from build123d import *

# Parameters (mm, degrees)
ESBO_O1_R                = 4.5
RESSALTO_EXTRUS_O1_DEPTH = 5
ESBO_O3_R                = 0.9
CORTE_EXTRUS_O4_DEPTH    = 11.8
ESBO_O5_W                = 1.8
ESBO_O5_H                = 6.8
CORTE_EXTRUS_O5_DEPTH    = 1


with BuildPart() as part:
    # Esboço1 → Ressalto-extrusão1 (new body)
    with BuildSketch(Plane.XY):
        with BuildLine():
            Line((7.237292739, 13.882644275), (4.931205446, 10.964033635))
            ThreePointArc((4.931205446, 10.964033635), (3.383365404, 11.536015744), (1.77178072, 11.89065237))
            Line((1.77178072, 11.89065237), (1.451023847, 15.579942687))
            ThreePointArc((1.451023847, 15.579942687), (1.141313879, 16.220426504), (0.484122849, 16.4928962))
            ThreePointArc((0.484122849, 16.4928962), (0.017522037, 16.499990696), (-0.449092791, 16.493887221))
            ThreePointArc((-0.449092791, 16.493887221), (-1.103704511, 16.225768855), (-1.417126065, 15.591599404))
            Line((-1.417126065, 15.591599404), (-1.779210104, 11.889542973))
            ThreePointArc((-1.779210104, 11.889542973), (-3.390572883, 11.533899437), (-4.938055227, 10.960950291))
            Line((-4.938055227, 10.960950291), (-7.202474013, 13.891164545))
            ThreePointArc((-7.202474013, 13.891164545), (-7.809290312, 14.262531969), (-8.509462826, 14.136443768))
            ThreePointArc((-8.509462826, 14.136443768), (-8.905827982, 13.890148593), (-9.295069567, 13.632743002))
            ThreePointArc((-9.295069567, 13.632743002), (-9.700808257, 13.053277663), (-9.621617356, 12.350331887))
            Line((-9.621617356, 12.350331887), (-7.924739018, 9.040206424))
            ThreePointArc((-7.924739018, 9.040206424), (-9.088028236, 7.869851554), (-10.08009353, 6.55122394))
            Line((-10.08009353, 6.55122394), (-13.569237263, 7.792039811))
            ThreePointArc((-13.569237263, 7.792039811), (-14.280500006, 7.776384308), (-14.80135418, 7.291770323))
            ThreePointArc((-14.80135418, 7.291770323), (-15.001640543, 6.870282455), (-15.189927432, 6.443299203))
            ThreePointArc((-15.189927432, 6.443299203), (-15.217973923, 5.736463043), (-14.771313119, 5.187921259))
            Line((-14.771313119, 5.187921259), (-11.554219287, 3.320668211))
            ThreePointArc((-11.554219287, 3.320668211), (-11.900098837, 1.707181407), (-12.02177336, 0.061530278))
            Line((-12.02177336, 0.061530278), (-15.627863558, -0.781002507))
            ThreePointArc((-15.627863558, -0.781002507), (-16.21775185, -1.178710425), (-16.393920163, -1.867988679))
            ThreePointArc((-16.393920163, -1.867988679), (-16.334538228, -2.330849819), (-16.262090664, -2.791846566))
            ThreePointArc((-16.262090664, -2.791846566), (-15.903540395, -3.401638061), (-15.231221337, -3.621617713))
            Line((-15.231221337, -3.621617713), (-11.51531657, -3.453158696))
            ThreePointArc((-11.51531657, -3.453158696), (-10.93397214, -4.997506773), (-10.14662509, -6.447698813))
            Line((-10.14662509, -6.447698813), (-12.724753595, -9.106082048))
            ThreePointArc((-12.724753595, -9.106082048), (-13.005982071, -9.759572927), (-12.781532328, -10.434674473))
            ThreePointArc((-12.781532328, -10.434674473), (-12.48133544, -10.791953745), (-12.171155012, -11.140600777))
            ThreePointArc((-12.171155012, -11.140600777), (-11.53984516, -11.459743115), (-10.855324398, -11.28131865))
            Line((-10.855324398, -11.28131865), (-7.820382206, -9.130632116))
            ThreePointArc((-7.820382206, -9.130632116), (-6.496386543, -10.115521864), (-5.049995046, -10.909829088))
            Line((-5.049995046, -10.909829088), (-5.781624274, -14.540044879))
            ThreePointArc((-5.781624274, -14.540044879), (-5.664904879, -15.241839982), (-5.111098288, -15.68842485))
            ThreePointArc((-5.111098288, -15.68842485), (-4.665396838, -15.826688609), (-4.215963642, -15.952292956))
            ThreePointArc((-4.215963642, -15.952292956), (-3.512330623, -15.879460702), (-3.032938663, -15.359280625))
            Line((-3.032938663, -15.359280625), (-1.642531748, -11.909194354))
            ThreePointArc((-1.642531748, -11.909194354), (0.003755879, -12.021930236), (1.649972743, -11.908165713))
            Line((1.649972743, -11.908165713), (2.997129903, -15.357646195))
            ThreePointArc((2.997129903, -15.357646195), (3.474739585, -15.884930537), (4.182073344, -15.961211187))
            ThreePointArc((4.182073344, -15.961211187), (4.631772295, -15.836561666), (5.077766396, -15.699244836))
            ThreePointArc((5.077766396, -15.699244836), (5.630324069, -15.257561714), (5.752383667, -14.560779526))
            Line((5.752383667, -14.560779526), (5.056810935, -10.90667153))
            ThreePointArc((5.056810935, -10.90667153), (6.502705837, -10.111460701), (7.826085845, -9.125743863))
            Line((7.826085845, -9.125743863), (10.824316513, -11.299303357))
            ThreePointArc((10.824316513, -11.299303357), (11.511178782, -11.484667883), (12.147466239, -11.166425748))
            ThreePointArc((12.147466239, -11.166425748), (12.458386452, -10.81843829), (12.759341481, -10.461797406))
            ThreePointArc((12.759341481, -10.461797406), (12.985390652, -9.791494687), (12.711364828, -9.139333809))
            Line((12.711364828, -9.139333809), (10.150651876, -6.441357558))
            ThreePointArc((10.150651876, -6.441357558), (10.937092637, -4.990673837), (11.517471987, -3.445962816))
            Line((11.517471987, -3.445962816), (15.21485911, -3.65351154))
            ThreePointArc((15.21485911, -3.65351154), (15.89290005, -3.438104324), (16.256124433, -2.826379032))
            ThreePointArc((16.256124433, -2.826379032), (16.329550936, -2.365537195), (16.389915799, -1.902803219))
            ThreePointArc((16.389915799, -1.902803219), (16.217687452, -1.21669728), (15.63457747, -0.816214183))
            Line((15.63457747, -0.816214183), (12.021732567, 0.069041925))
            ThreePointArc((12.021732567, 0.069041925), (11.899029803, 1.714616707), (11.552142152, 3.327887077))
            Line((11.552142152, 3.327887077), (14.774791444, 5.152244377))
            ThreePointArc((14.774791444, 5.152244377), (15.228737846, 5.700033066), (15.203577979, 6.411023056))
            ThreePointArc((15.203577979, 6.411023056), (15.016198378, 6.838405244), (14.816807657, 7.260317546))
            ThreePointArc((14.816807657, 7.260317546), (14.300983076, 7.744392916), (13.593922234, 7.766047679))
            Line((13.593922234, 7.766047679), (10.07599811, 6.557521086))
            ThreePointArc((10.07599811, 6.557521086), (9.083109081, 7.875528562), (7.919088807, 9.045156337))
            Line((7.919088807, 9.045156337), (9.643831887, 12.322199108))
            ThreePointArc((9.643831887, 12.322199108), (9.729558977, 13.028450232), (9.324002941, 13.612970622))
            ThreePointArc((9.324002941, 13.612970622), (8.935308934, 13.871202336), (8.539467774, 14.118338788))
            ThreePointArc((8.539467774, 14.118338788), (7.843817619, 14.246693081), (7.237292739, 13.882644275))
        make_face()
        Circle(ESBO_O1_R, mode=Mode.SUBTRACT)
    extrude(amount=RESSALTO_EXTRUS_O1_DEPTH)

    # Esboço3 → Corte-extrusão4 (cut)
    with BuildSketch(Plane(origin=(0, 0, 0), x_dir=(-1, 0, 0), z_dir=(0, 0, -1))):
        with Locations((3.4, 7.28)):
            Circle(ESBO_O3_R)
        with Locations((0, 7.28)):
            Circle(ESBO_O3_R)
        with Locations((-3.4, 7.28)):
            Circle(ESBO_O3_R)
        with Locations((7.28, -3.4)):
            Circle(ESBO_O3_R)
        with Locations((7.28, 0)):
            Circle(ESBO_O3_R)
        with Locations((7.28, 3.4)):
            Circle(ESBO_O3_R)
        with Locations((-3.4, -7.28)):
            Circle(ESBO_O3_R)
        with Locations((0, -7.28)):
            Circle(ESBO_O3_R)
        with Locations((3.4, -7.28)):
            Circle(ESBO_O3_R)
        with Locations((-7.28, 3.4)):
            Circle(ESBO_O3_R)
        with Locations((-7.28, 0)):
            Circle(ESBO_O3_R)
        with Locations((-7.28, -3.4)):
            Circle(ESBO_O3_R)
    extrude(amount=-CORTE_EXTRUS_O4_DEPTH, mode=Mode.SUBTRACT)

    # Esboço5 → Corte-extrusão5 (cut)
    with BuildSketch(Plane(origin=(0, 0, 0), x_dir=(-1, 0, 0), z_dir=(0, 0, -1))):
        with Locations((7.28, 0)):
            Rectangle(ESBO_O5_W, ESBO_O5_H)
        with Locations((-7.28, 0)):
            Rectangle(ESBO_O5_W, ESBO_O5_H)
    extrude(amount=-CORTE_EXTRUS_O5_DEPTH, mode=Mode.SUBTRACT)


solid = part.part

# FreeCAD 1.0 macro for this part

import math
import FreeCAD as App
import Part
import Sketcher
from FreeCAD import Vector
Q = App.Units.Quantity

doc = App.newDocument("Part")
body = doc.addObject("PartDesign::Body", "Body")

# Sketch on XY plane
sketch1 = body.newObject("Sketcher::SketchObject", "Sketch")
sketch1.AttachmentSupport = (doc.getObject("XY_Plane"), [""])
sketch1.MapMode = "FlatFace"
sketch1.addGeometry(Part.LineSegment(Vector(7.237293, 13.882644, 0), Vector(4.931205, 10.964034, 0)), False)
sketch1.addGeometry(Part.ArcOfCircle(Part.Circle(Vector(0, 0, 0), Vector(0, 0, 1), 12.021931), math.radians(65.783597), math.radians(81.524931)), False)
sketch1.addGeometry(Part.LineSegment(Vector(1.771781, 11.890652, 0), Vector(1.451024, 15.579943, 0)), False)
sketch1.addGeometry(Part.ArcOfCircle(Part.Circle(Vector(0.454782, 15.493327, 0), Vector(0, 0, 1), 1), math.radians(4.968955), math.radians(88.318656)), False)
sketch1.addGeometry(Part.ArcOfCircle(Part.Circle(Vector(0, 0, 0), Vector(0, 0, 1), 16.5), math.radians(88.318656), math.radians(91.559654)), False)
sketch1.addGeometry(Part.ArcOfCircle(Part.Circle(Vector(-0.421875, 15.494258, 0), Vector(0, 0, 1), 1), math.radians(91.559654), math.radians(174.413885)), False)
sketch1.addGeometry(Part.LineSegment(Vector(-1.417126, 15.591599, 0), Vector(-1.77921, 11.889543, 0)), False)
sketch1.addGeometry(Part.ArcOfCircle(Part.Circle(Vector(0, 0, 0), Vector(0, 0, 1), 12.021931), math.radians(98.51087), math.radians(114.252204)), False)
sketch1.addGeometry(Part.LineSegment(Vector(-4.938055, 10.96095, 0), Vector(-7.202474, 13.891165, 0)), False)
sketch1.addGeometry(Part.ArcOfCircle(Part.Circle(Vector(-7.993738, 13.27969, 0), Vector(0, 0, 1), 1), math.radians(37.696228), math.radians(121.045929)), False)
sketch1.addGeometry(Part.ArcOfCircle(Part.Circle(Vector(0.000001, -0.000001, 0), Vector(0, 0, 1), 16.500002), math.radians(121.045929), math.radians(124.286927)), False)
sketch1.addGeometry(Part.ArcOfCircle(Part.Circle(Vector(-8.731732, 12.806516, 0), Vector(0, 0, 1), 1), math.radians(124.286927), math.radians(207.141158)), False)
sketch1.addGeometry(Part.LineSegment(Vector(-9.621617, 12.350332, 0), Vector(-7.924739, 9.040206, 0)), False)
sketch1.addGeometry(Part.ArcOfCircle(Part.Circle(Vector(0, 0, 0), Vector(0, 0, 1), 12.021931), math.radians(131.238142), math.radians(146.979477)), False)
sketch1.addGeometry(Part.LineSegment(Vector(-10.080094, 6.551224, 0), Vector(-13.569237, 7.79204, 0)), False)
sketch1.addGeometry(Part.ArcOfCircle(Part.Circle(Vector(-13.904302, 6.849845, 0), Vector(0, 0, 1), 1), math.radians(70.4235), math.radians(153.773201)), False)
sketch1.addGeometry(Part.ArcOfCircle(Part.Circle(Vector(0.000001, 0, 0), Vector(0, 0, 1), 16.500001), math.radians(153.773201), math.radians(157.0142)), False)
sketch1.addGeometry(Part.ArcOfCircle(Part.Circle(Vector(-14.269326, 6.052796, 0), Vector(0, 0, 1), 1), math.radians(157.0142), math.radians(239.868431)), False)
sketch1.addGeometry(Part.LineSegment(Vector(-14.771313, 5.187921, 0), Vector(-11.554219, 3.320668, 0)), False)
sketch1.addGeometry(Part.ArcOfCircle(Part.Circle(Vector(0, 0, 0), Vector(0, 0, 1), 12.021931), math.radians(163.965415), math.radians(179.706749)), False)
sketch1.addGeometry(Part.LineSegment(Vector(-12.021773, 0.06153, 0), Vector(-15.627864, -0.781003, 0)), False)
sketch1.addGeometry(Part.ArcOfCircle(Part.Circle(Vector(-15.400349, -1.754777, 0), Vector(0, 0, 1), 1), math.radians(103.150773), math.radians(186.500474)), False)
sketch1.addGeometry(Part.ArcOfCircle(Part.Circle(Vector(0.000001, 0, 0), Vector(0, 0, 1), 16.500001), math.radians(-173.499526), math.radians(-170.258527)), False)
sketch1.addGeometry(Part.ArcOfCircle(Part.Circle(Vector(-15.276509, -2.622644, 0), Vector(0, 0, 1), 1), math.radians(-170.258527), math.radians(-87.404297)), False)
sketch1.addGeometry(Part.LineSegment(Vector(-15.231221, -3.621618, 0), Vector(-11.515317, -3.453159, 0)), False)
sketch1.addGeometry(Part.ArcOfCircle(Part.Circle(Vector(0, 0, 0), Vector(0, 0, 1), 12.021931), math.radians(-163.307312), math.radians(-147.565978)), False)
sketch1.addGeometry(Part.LineSegment(Vector(-10.146625, -6.447699, 0), Vector(-12.724754, -9.106082, 0)), False)
sketch1.addGeometry(Part.ArcOfCircle(Part.Circle(Vector(-12.006894, -9.80227, 0), Vector(0, 0, 1), 1), math.radians(135.878046), math.radians(219.227747)), False)
sketch1.addGeometry(Part.ArcOfCircle(Part.Circle(Vector(0, 0, 0), Vector(0, 0, 1), 16.5), math.radians(-140.772253), math.radians(-137.531255)), False)
sketch1.addGeometry(Part.ArcOfCircle(Part.Circle(Vector(-11.433509, -10.465413, 0), Vector(0, 0, 1), 1), math.radians(-137.531254), math.radians(-54.677024)), False)
sketch1.addGeometry(Part.LineSegment(Vector(-10.855324, -11.281319, 0), Vector(-7.820382, -9.130632, 0)), False)
sketch1.addGeometry(Part.ArcOfCircle(Part.Circle(Vector(0, 0, 0), Vector(0, 0, 1), 12.021931), math.radians(-130.58004), math.radians(-114.838705)), False)
sketch1.addGeometry(Part.LineSegment(Vector(-5.049995, -10.909829, 0), Vector(-5.781624, -14.540045, 0)), False)
sketch1.addGeometry(Part.ArcOfCircle(Part.Circle(Vector(-4.801335, -14.737611, 0), Vector(0, 0, 1), 1), math.radians(168.605319), math.radians(251.95502)), False)
sketch1.addGeometry(Part.ArcOfCircle(Part.Circle(Vector(0, 0, 0), Vector(0, 0, 1), 16.5), math.radians(-108.04498), math.radians(-104.803982)), False)
sketch1.addGeometry(Part.ArcOfCircle(Part.Circle(Vector(-3.960451, -14.985487, 0), Vector(0, 0, 1), 1), math.radians(-104.803982), math.radians(-21.949751)), False)
sketch1.addGeometry(Part.LineSegment(Vector(-3.032939, -15.359281, 0), Vector(-1.642532, -11.909194, 0)), False)
sketch1.addGeometry(Part.ArcOfCircle(Part.Circle(Vector(0, 0, 0), Vector(0, 0, 1), 12.021931), math.radians(-97.852767), math.radians(-82.111433)), False)
sketch1.addGeometry(Part.LineSegment(Vector(1.649973, -11.908166, 0), Vector(2.99713, -15.357646, 0)), False)
sketch1.addGeometry(Part.ArcOfCircle(Part.Circle(Vector(3.928614, -14.993865, 0), Vector(0, 0, 1), 1), math.radians(-158.667409), math.radians(-75.317708)), False)
sketch1.addGeometry(Part.ArcOfCircle(Part.Circle(Vector(0, 0.000001, 0), Vector(0, 0, 1), 16.500001), math.radians(-75.317708), math.radians(-72.076709)), False)
sketch1.addGeometry(Part.ArcOfCircle(Part.Circle(Vector(4.770023, -14.747775, 0), Vector(0, 0, 1), 1), math.radians(-72.076709), math.radians(10.777522)), False)
sketch1.addGeometry(Part.LineSegment(Vector(5.752384, -14.56078, 0), Vector(5.056811, -10.906672, 0)), False)
sketch1.addGeometry(Part.ArcOfCircle(Part.Circle(Vector(0, 0, 0), Vector(0, 0, 1), 12.021931), math.radians(-65.125494), math.radians(-49.38416)), False)
sketch1.addGeometry(Part.LineSegment(Vector(7.826086, -9.125744, 0), Vector(10.824317, -11.299303, 0)), False)
sketch1.addGeometry(Part.ArcOfCircle(Part.Circle(Vector(11.411256, -10.489673, 0), Vector(0, 0, 1), 1), math.radians(-125.940136), math.radians(-42.590435)), False)
sketch1.addGeometry(Part.ArcOfCircle(Part.Circle(Vector(0.000001, -0.000001, 0), Vector(0, 0, 1), 16.499999), math.radians(-42.590435), math.radians(-39.349436)), False)
sketch1.addGeometry(Part.ArcOfCircle(Part.Circle(Vector(11.986048, -9.827749, 0), Vector(0, 0, 1), 1), math.radians(-39.349436), math.radians(43.504794)), False)
sketch1.addGeometry(Part.LineSegment(Vector(12.711365, -9.139334, 0), Vector(10.150652, -6.441358, 0)), False)
sketch1.addGeometry(Part.ArcOfCircle(Part.Circle(Vector(0, 0, 0), Vector(0, 0, 1), 12.021931), math.radians(-32.398221), math.radians(-16.656887)), False)
sketch1.addGeometry(Part.LineSegment(Vector(11.517472, -3.445963, 0), Vector(15.214859, -3.653512, 0)), False)
sketch1.addGeometry(Part.ArcOfCircle(Part.Circle(Vector(15.270905, -2.655083, 0), Vector(0, 0, 1), 1), math.radians(-93.212863), math.radians(-9.863162)), False)
sketch1.addGeometry(Part.ArcOfCircle(Part.Circle(Vector(-0.000001, 0, 0), Vector(0, 0, 1), 16.500001), math.radians(-9.863162), math.radians(-6.622164)), False)
sketch1.addGeometry(Part.ArcOfCircle(Part.Circle(Vector(15.396588, -1.787482, 0), Vector(0, 0, 1), 1), math.radians(-6.622164), math.radians(76.232067)), False)
sketch1.addGeometry(Part.LineSegment(Vector(15.634577, -0.816214, 0), Vector(12.021733, 0.069042, 0)), False)
sketch1.addGeometry(Part.ArcOfCircle(Part.Circle(Vector(0, 0, 0), Vector(0, 0, 1), 12.021931), math.radians(0.329051), math.radians(16.070386)), False)
sketch1.addGeometry(Part.LineSegment(Vector(11.552142, 3.327887, 0), Vector(14.774791, 5.152244, 0)), False)
sketch1.addGeometry(Part.ArcOfCircle(Part.Circle(Vector(14.282149, 6.022476, 0), Vector(0, 0, 1), 1), math.radians(-60.485591), math.radians(22.86411)), False)
sketch1.addGeometry(Part.ArcOfCircle(Part.Circle(Vector(0.000001, 0, 0), Vector(0, 0, 1), 16.499999), math.radians(22.86411), math.radians(26.105109)), False)
sketch1.addGeometry(Part.ArcOfCircle(Part.Circle(Vector(13.918819, 6.820298, 0), Vector(0, 0, 1), 1), math.radians(26.105109), math.radians(108.95934)), False)
sketch1.addGeometry(Part.LineSegment(Vector(13.593922, 7.766048, 0), Vector(10.075998, 6.557521, 0)), False)
sketch1.addGeometry(Part.ArcOfCircle(Part.Circle(Vector(0, 0, 0), Vector(0, 0, 1), 12.021931), math.radians(33.056324), math.radians(48.797658)), False)
sketch1.addGeometry(Part.LineSegment(Vector(7.919089, 9.045156, 0), Vector(9.643832, 12.322199, 0)), False)
sketch1.addGeometry(Part.ArcOfCircle(Part.Circle(Vector(8.758912, 12.787942, 0), Vector(0, 0, 1), 1), math.radians(-27.758318), math.radians(55.591383)), False)
sketch1.addGeometry(Part.ArcOfCircle(Part.Circle(Vector(0, 0, 0), Vector(0, 0, 1), 16.5), math.radians(55.591383), math.radians(58.832382)), False)
sketch1.addGeometry(Part.ArcOfCircle(Part.Circle(Vector(8.021924, 13.262682, 0), Vector(0, 0, 1), 1), math.radians(58.832382), math.radians(141.686612)), False)
sketch1.addGeometry(Part.Circle(Vector(0, 0, 0), Vector(0, 0, 1), 4.5), False)
sketch1.addConstraint(Sketcher.Constraint("Coincident", 0, 2, 1, 1))
sketch1.addConstraint(Sketcher.Constraint("Coincident", 1, 2, 2, 1))
sketch1.addConstraint(Sketcher.Constraint("Tangent", 2, 2, 3, 1))
sketch1.addConstraint(Sketcher.Constraint("Tangent", 3, 2, 4, 1))
sketch1.addConstraint(Sketcher.Constraint("Tangent", 4, 2, 5, 1))
sketch1.addConstraint(Sketcher.Constraint("Tangent", 5, 2, 6, 1))
sketch1.addConstraint(Sketcher.Constraint("Coincident", 6, 2, 7, 1))
sketch1.addConstraint(Sketcher.Constraint("Coincident", 7, 2, 8, 1))
sketch1.addConstraint(Sketcher.Constraint("Tangent", 8, 2, 9, 1))
sketch1.addConstraint(Sketcher.Constraint("Tangent", 9, 2, 10, 1))
sketch1.addConstraint(Sketcher.Constraint("Tangent", 10, 2, 11, 1))
sketch1.addConstraint(Sketcher.Constraint("Tangent", 11, 2, 12, 1))
sketch1.addConstraint(Sketcher.Constraint("Coincident", 12, 2, 13, 1))
sketch1.addConstraint(Sketcher.Constraint("Coincident", 13, 2, 14, 1))
sketch1.addConstraint(Sketcher.Constraint("Tangent", 14, 2, 15, 1))
sketch1.addConstraint(Sketcher.Constraint("Tangent", 15, 2, 16, 1))
sketch1.addConstraint(Sketcher.Constraint("Tangent", 16, 2, 17, 1))
sketch1.addConstraint(Sketcher.Constraint("Tangent", 17, 2, 18, 1))
sketch1.addConstraint(Sketcher.Constraint("Coincident", 18, 2, 19, 1))
sketch1.addConstraint(Sketcher.Constraint("Coincident", 19, 2, 20, 1))
sketch1.addConstraint(Sketcher.Constraint("Tangent", 20, 2, 21, 1))
sketch1.addConstraint(Sketcher.Constraint("Tangent", 21, 2, 22, 1))
sketch1.addConstraint(Sketcher.Constraint("Tangent", 22, 2, 23, 1))
sketch1.addConstraint(Sketcher.Constraint("Tangent", 23, 2, 24, 1))
sketch1.addConstraint(Sketcher.Constraint("Coincident", 24, 2, 25, 1))
sketch1.addConstraint(Sketcher.Constraint("Coincident", 25, 2, 26, 1))
sketch1.addConstraint(Sketcher.Constraint("Tangent", 26, 2, 27, 1))
sketch1.addConstraint(Sketcher.Constraint("Tangent", 27, 2, 28, 1))
sketch1.addConstraint(Sketcher.Constraint("Tangent", 28, 2, 29, 1))
sketch1.addConstraint(Sketcher.Constraint("Tangent", 29, 2, 30, 1))
sketch1.addConstraint(Sketcher.Constraint("Coincident", 30, 2, 31, 1))
sketch1.addConstraint(Sketcher.Constraint("Coincident", 31, 2, 32, 1))
sketch1.addConstraint(Sketcher.Constraint("Tangent", 32, 2, 33, 1))
sketch1.addConstraint(Sketcher.Constraint("Tangent", 33, 2, 34, 1))
sketch1.addConstraint(Sketcher.Constraint("Tangent", 34, 2, 35, 1))
sketch1.addConstraint(Sketcher.Constraint("Tangent", 35, 2, 36, 1))
sketch1.addConstraint(Sketcher.Constraint("Coincident", 36, 2, 37, 1))
sketch1.addConstraint(Sketcher.Constraint("Coincident", 37, 2, 38, 1))
sketch1.addConstraint(Sketcher.Constraint("Tangent", 38, 2, 39, 1))
sketch1.addConstraint(Sketcher.Constraint("Tangent", 39, 2, 40, 1))
sketch1.addConstraint(Sketcher.Constraint("Tangent", 40, 2, 41, 1))
sketch1.addConstraint(Sketcher.Constraint("Tangent", 41, 2, 42, 1))
sketch1.addConstraint(Sketcher.Constraint("Coincident", 42, 2, 43, 1))
sketch1.addConstraint(Sketcher.Constraint("Coincident", 43, 2, 44, 1))
sketch1.addConstraint(Sketcher.Constraint("Tangent", 44, 2, 45, 1))
sketch1.addConstraint(Sketcher.Constraint("Tangent", 45, 2, 46, 1))
sketch1.addConstraint(Sketcher.Constraint("Tangent", 46, 2, 47, 1))
sketch1.addConstraint(Sketcher.Constraint("Tangent", 47, 2, 48, 1))
sketch1.addConstraint(Sketcher.Constraint("Coincident", 48, 2, 49, 1))
sketch1.addConstraint(Sketcher.Constraint("Coincident", 49, 2, 50, 1))
sketch1.addConstraint(Sketcher.Constraint("Tangent", 50, 2, 51, 1))
sketch1.addConstraint(Sketcher.Constraint("Tangent", 51, 2, 52, 1))
sketch1.addConstraint(Sketcher.Constraint("Tangent", 52, 2, 53, 1))
sketch1.addConstraint(Sketcher.Constraint("Tangent", 53, 2, 54, 1))
sketch1.addConstraint(Sketcher.Constraint("Coincident", 54, 2, 55, 1))
sketch1.addConstraint(Sketcher.Constraint("Coincident", 55, 2, 56, 1))
sketch1.addConstraint(Sketcher.Constraint("Tangent", 56, 2, 57, 1))
sketch1.addConstraint(Sketcher.Constraint("Tangent", 57, 2, 58, 1))
sketch1.addConstraint(Sketcher.Constraint("Tangent", 58, 2, 59, 1))
sketch1.addConstraint(Sketcher.Constraint("Tangent", 59, 2, 60, 1))
sketch1.addConstraint(Sketcher.Constraint("Coincident", 60, 2, 61, 1))
sketch1.addConstraint(Sketcher.Constraint("Coincident", 61, 2, 62, 1))
sketch1.addConstraint(Sketcher.Constraint("Tangent", 62, 2, 63, 1))
sketch1.addConstraint(Sketcher.Constraint("Tangent", 63, 2, 64, 1))
sketch1.addConstraint(Sketcher.Constraint("Tangent", 64, 2, 65, 1))
sketch1.addConstraint(Sketcher.Constraint("Tangent", 65, 2, 0, 1))
sketch1.addConstraint(Sketcher.Constraint("Coincident", 1, 3, -1, 1))
sketch1.addConstraint(Sketcher.Constraint("Coincident", 4, 3, -1, 1))
sketch1.addConstraint(Sketcher.Constraint("Coincident", 7, 3, -1, 1))
sketch1.addConstraint(Sketcher.Constraint("Coincident", 10, 3, -1, 1))
sketch1.addConstraint(Sketcher.Constraint("Coincident", 13, 3, -1, 1))
sketch1.addConstraint(Sketcher.Constraint("Coincident", 16, 3, -1, 1))
sketch1.addConstraint(Sketcher.Constraint("Coincident", 19, 3, -1, 1))
sketch1.addConstraint(Sketcher.Constraint("Coincident", 22, 3, -1, 1))
sketch1.addConstraint(Sketcher.Constraint("Coincident", 25, 3, -1, 1))
sketch1.addConstraint(Sketcher.Constraint("Coincident", 28, 3, -1, 1))
sketch1.addConstraint(Sketcher.Constraint("Coincident", 31, 3, -1, 1))
sketch1.addConstraint(Sketcher.Constraint("Coincident", 34, 3, -1, 1))
sketch1.addConstraint(Sketcher.Constraint("Coincident", 37, 3, -1, 1))
sketch1.addConstraint(Sketcher.Constraint("Coincident", 40, 3, -1, 1))
sketch1.addConstraint(Sketcher.Constraint("Coincident", 43, 3, -1, 1))
sketch1.addConstraint(Sketcher.Constraint("Coincident", 46, 3, -1, 1))
sketch1.addConstraint(Sketcher.Constraint("Coincident", 49, 3, -1, 1))
sketch1.addConstraint(Sketcher.Constraint("Coincident", 52, 3, -1, 1))
sketch1.addConstraint(Sketcher.Constraint("Coincident", 55, 3, -1, 1))
sketch1.addConstraint(Sketcher.Constraint("Coincident", 58, 3, -1, 1))
sketch1.addConstraint(Sketcher.Constraint("Coincident", 61, 3, -1, 1))
sketch1.addConstraint(Sketcher.Constraint("Coincident", 64, 3, -1, 1))
sketch1.addConstraint(Sketcher.Constraint("Coincident", 66, 3, -1, 1))
sketch1.addConstraint(Sketcher.Constraint("Equal", 3, 5))
sketch1.addConstraint(Sketcher.Constraint("Equal", 1, 7))
sketch1.addConstraint(Sketcher.Constraint("Equal", 5, 9))
sketch1.addConstraint(Sketcher.Constraint("Equal", 4, 10))
sketch1.addConstraint(Sketcher.Constraint("Equal", 9, 11))
sketch1.addConstraint(Sketcher.Constraint("Equal", 7, 13))
sketch1.addConstraint(Sketcher.Constraint("Equal", 11, 15))
sketch1.addConstraint(Sketcher.Constraint("Equal", 10, 16))
sketch1.addConstraint(Sketcher.Constraint("Equal", 15, 17))
sketch1.addConstraint(Sketcher.Constraint("Equal", 13, 19))
sketch1.addConstraint(Sketcher.Constraint("Equal", 17, 21))
sketch1.addConstraint(Sketcher.Constraint("Equal", 16, 22))
sketch1.addConstraint(Sketcher.Constraint("Equal", 21, 23))
sketch1.addConstraint(Sketcher.Constraint("Equal", 19, 25))
sketch1.addConstraint(Sketcher.Constraint("Equal", 23, 27))
sketch1.addConstraint(Sketcher.Constraint("Equal", 22, 28))
sketch1.addConstraint(Sketcher.Constraint("Equal", 27, 29))
sketch1.addConstraint(Sketcher.Constraint("Equal", 25, 31))
sketch1.addConstraint(Sketcher.Constraint("Equal", 29, 33))
sketch1.addConstraint(Sketcher.Constraint("Equal", 28, 34))
sketch1.addConstraint(Sketcher.Constraint("Equal", 33, 35))
sketch1.addConstraint(Sketcher.Constraint("Equal", 31, 37))
sketch1.addConstraint(Sketcher.Constraint("Equal", 35, 39))
sketch1.addConstraint(Sketcher.Constraint("Equal", 34, 40))
sketch1.addConstraint(Sketcher.Constraint("Equal", 39, 41))
sketch1.addConstraint(Sketcher.Constraint("Equal", 37, 43))
sketch1.addConstraint(Sketcher.Constraint("Equal", 41, 45))
sketch1.addConstraint(Sketcher.Constraint("Equal", 34, 46))
sketch1.addConstraint(Sketcher.Constraint("Equal", 45, 47))
sketch1.addConstraint(Sketcher.Constraint("Equal", 43, 49))
sketch1.addConstraint(Sketcher.Constraint("Equal", 47, 51))
sketch1.addConstraint(Sketcher.Constraint("Equal", 40, 52))
sketch1.addConstraint(Sketcher.Constraint("Equal", 51, 53))
sketch1.addConstraint(Sketcher.Constraint("Equal", 49, 55))
sketch1.addConstraint(Sketcher.Constraint("Equal", 53, 57))
sketch1.addConstraint(Sketcher.Constraint("Equal", 52, 58))
sketch1.addConstraint(Sketcher.Constraint("Equal", 57, 59))
sketch1.addConstraint(Sketcher.Constraint("Equal", 55, 61))
sketch1.addConstraint(Sketcher.Constraint("Equal", 59, 63))
sketch1.addConstraint(Sketcher.Constraint("Equal", 58, 64))
sketch1.addConstraint(Sketcher.Constraint("Equal", 63, 65))
sketch1.addConstraint(Sketcher.Constraint("Equal", 0, 6))
sketch1.addConstraint(Sketcher.Constraint("Equal", 2, 8))
sketch1.addConstraint(Sketcher.Constraint("Equal", 6, 12))
sketch1.addConstraint(Sketcher.Constraint("Equal", 8, 14))
sketch1.addConstraint(Sketcher.Constraint("Equal", 12, 18))
sketch1.addConstraint(Sketcher.Constraint("Equal", 14, 20))
sketch1.addConstraint(Sketcher.Constraint("Equal", 18, 24))
sketch1.addConstraint(Sketcher.Constraint("Equal", 20, 26))
sketch1.addConstraint(Sketcher.Constraint("Equal", 24, 30))
sketch1.addConstraint(Sketcher.Constraint("Equal", 26, 32))
sketch1.addConstraint(Sketcher.Constraint("Equal", 30, 36))
sketch1.addConstraint(Sketcher.Constraint("Equal", 32, 38))
sketch1.addConstraint(Sketcher.Constraint("Equal", 36, 42))
sketch1.addConstraint(Sketcher.Constraint("Equal", 38, 44))
sketch1.addConstraint(Sketcher.Constraint("Equal", 42, 48))
sketch1.addConstraint(Sketcher.Constraint("Equal", 44, 50))
sketch1.addConstraint(Sketcher.Constraint("Equal", 48, 54))
sketch1.addConstraint(Sketcher.Constraint("Equal", 50, 56))
sketch1.addConstraint(Sketcher.Constraint("Equal", 54, 60))
sketch1.addConstraint(Sketcher.Constraint("Equal", 56, 62))
sketch1.addConstraint(Sketcher.Constraint("Diameter", 66, Q("9 mm")))
sketch1.addConstraint(Sketcher.Constraint("Radius", 3, Q("1 mm")))
sketch1.addConstraint(Sketcher.Constraint("Radius", 4, Q("16.5 mm")))
sketch1.addConstraint(Sketcher.Constraint("Radius", 1, Q("12.021931 mm")))
sketch1.addConstraint(Sketcher.Constraint("DistanceX", -1, 1, 60, 2, Q("10.075998 mm")))
sketch1.addConstraint(Sketcher.Constraint("DistanceY", -1, 1, 59, 3, Q("6.820298 mm")))
sketch1.addConstraint(Sketcher.Constraint("DistanceY", -1, 1, 5, 2, Q("15.591599 mm")))
sketch1.addConstraint(Sketcher.Constraint("DistanceY", -1, 1, 16, 2, Q("6.443299 mm")))
sketch1.addConstraint(Sketcher.Constraint("DistanceY", 25, 2, -1, 1, Q("6.447699 mm")))
sketch1.addConstraint(Sketcher.Constraint("DistanceY", 28, 2, -1, 1, Q("11.140601 mm")))
sketch1.addConstraint(Sketcher.Constraint("DistanceX", 33, 2, -1, 1, Q("5.111098 mm")))
sketch1.addConstraint(Sketcher.Constraint("DistanceY", -1, 1, 62, 2, Q("12.322199 mm")))
sketch1.addConstraint(Sketcher.Constraint("DistanceY", -1, 1, 9, 3, Q("13.27969 mm")))
sketch1.addConstraint(Sketcher.Constraint("DistanceX", 21, 3, -1, 1, Q("15.400349 mm")))
sketch1.addConstraint(Sketcher.Constraint("DistanceX", 23, 3, -1, 1, Q("15.276509 mm")))
sketch1.addConstraint(Sketcher.Constraint("DistanceY", 27, 3, -1, 1, Q("9.80227 mm")))
sketch1.addConstraint(Sketcher.Constraint("DistanceX", 35, 3, -1, 1, Q("3.960451 mm")))
sketch1.addConstraint(Sketcher.Constraint("DistanceX", -1, 1, 47, 3, Q("11.986048 mm")))
sketch1.addConstraint(Sketcher.Constraint("DistanceY", 53, 3, -1, 1, Q("1.787482 mm")))
sketch1.addConstraint(Sketcher.Constraint("DistanceX", -1, 1, 57, 3, Q("14.282149 mm")))
sketch1.addConstraint(Sketcher.Constraint("DistanceY", -1, 1, 65, 3, Q("13.262682 mm")))
sketch1.addConstraint(Sketcher.Constraint("DistanceX", -1, 1, 1, 2, Q("1.771781 mm")))
sketch1.addConstraint(Sketcher.Constraint("DistanceX", 10, 2, -1, 1, Q("9.29507 mm")))
sketch1.addConstraint(Sketcher.Constraint("DistanceY", -1, 1, 14, 2, Q("7.79204 mm")))
sketch1.addConstraint(Sketcher.Constraint("DistanceX", -1, 1, 38, 2, Q("2.99713 mm")))
sketch1.addConstraint(Sketcher.Constraint("DistanceY", 41, 2, -1, 1, Q("14.56078 mm")))
sketch1.addConstraint(Sketcher.Constraint("DistanceX", -1, 1, 49, 2, Q("11.517472 mm")))
sketch1.addConstraint(Sketcher.Constraint("DistanceX", -1, 1, 45, 3, Q("11.411256 mm")))
pad1 = body.newObject("PartDesign::Pad", "Pad")
pad1.Profile = sketch1
pad1.Length = 5

# Sketch on XY plane
sketch2 = body.newObject("Sketcher::SketchObject", "Sketch001")
sketch2.AttachmentSupport = (doc.getObject("XY_Plane"), [""])
sketch2.MapMode = "FlatFace"
sketch2.addGeometry(Part.Circle(Vector(-3.4, 7.28, 0), Vector(0, 0, 1), 0.9), False)
sketch2.addGeometry(Part.Circle(Vector(0, 7.28, 0), Vector(0, 0, 1), 0.9), False)
sketch2.addGeometry(Part.Circle(Vector(3.4, 7.28, 0), Vector(0, 0, 1), 0.9), False)
sketch2.addGeometry(Part.Circle(Vector(-7.28, -3.4, 0), Vector(0, 0, 1), 0.9), False)
sketch2.addGeometry(Part.Circle(Vector(-7.28, 0, 0), Vector(0, 0, 1), 0.9), False)
sketch2.addGeometry(Part.Circle(Vector(-7.28, 3.4, 0), Vector(0, 0, 1), 0.9), False)
sketch2.addGeometry(Part.Circle(Vector(3.4, -7.28, 0), Vector(0, 0, 1), 0.9), False)
sketch2.addGeometry(Part.Circle(Vector(0, -7.28, 0), Vector(0, 0, 1), 0.9), False)
sketch2.addGeometry(Part.Circle(Vector(-3.4, -7.28, 0), Vector(0, 0, 1), 0.9), False)
sketch2.addGeometry(Part.Circle(Vector(7.28, 3.4, 0), Vector(0, 0, 1), 0.9), False)
sketch2.addGeometry(Part.Circle(Vector(7.28, 0, 0), Vector(0, 0, 1), 0.9), False)
sketch2.addGeometry(Part.Circle(Vector(7.28, -3.4, 0), Vector(0, 0, 1), 0.9), False)
sketch2.addConstraint(Sketcher.Constraint("Equal", 0, 1))
sketch2.addConstraint(Sketcher.Constraint("Equal", 1, 2))
sketch2.addConstraint(Sketcher.Constraint("Equal", 2, 3))
sketch2.addConstraint(Sketcher.Constraint("Equal", 3, 4))
sketch2.addConstraint(Sketcher.Constraint("Equal", 4, 5))
sketch2.addConstraint(Sketcher.Constraint("Equal", 5, 6))
sketch2.addConstraint(Sketcher.Constraint("Equal", 6, 7))
sketch2.addConstraint(Sketcher.Constraint("Equal", 7, 8))
sketch2.addConstraint(Sketcher.Constraint("Equal", 8, 9))
sketch2.addConstraint(Sketcher.Constraint("Equal", 9, 10))
sketch2.addConstraint(Sketcher.Constraint("Equal", 10, 11))
sketch2.addConstraint(Sketcher.Constraint("Symmetric", 0, 3, 6, 3, -1, 1))
sketch2.addConstraint(Sketcher.Constraint("Symmetric", 1, 3, 7, 3, -1, 1))
sketch2.addConstraint(Sketcher.Constraint("Symmetric", 2, 3, 8, 3, -1, 1))
sketch2.addConstraint(Sketcher.Constraint("Symmetric", 3, 3, 9, 3, -1, 1))
sketch2.addConstraint(Sketcher.Constraint("Symmetric", 4, 3, 10, 3, -1, 1))
sketch2.addConstraint(Sketcher.Constraint("Symmetric", 5, 3, 11, 3, -1, 1))
sketch2.addConstraint(Sketcher.Constraint("Symmetric", 0, 3, 2, 3, -2))
sketch2.addConstraint(Sketcher.Constraint("Symmetric", 5, 3, 9, 3, -2))
sketch2.addConstraint(Sketcher.Constraint("PointOnObject", 1, 3, -2))
sketch2.addConstraint(Sketcher.Constraint("PointOnObject", 4, 3, -1))
sketch2.addConstraint(Sketcher.Constraint("Horizontal", 0, 3, 1, 3))
sketch2.addConstraint(Sketcher.Constraint("Vertical", 3, 3, 4, 3))
sketch2.addConstraint(Sketcher.Constraint("Diameter", 0, Q("1.8 mm")))
sketch2.addConstraint(Sketcher.Constraint("DistanceX", 0, 3, -1, 1, Q("3.4 mm")))
sketch2.addConstraint(Sketcher.Constraint("DistanceY", 3, 3, -1, 1, Q("3.4 mm")))
sketch2.addConstraint(Sketcher.Constraint("DistanceY", -1, 1, 0, 3, Q("7.28 mm")))
sketch2.addConstraint(Sketcher.Constraint("DistanceX", 3, 3, -1, 1, Q("7.28 mm")))
pocket1 = body.newObject("PartDesign::Pocket", "Pocket")
pocket1.Profile = sketch2
pocket1.Length = 11.8
pocket1.Reversed = True

# Sketch on XY plane
sketch3 = body.newObject("Sketcher::SketchObject", "Sketch002")
sketch3.AttachmentSupport = (doc.getObject("XY_Plane"), [""])
sketch3.MapMode = "FlatFace"
sketch3.addGeometry(Part.LineSegment(Vector(-6.38, 3.4, 0), Vector(-6.38, -3.4, 0)), False)
sketch3.addGeometry(Part.LineSegment(Vector(-6.38, -3.4, 0), Vector(-8.18, -3.4, 0)), False)
sketch3.addGeometry(Part.LineSegment(Vector(-8.18, -3.4, 0), Vector(-8.18, 3.4, 0)), False)
sketch3.addGeometry(Part.LineSegment(Vector(-8.18, 3.4, 0), Vector(-6.38, 3.4, 0)), False)
sketch3.addGeometry(Part.LineSegment(Vector(8.18, 3.4, 0), Vector(8.18, -3.4, 0)), False)
sketch3.addGeometry(Part.LineSegment(Vector(8.18, -3.4, 0), Vector(6.38, -3.4, 0)), False)
sketch3.addGeometry(Part.LineSegment(Vector(6.38, -3.4, 0), Vector(6.38, 3.4, 0)), False)
sketch3.addGeometry(Part.LineSegment(Vector(6.38, 3.4, 0), Vector(8.18, 3.4, 0)), False)
sketch3.addConstraint(Sketcher.Constraint("Coincident", 0, 2, 1, 1))
sketch3.addConstraint(Sketcher.Constraint("Coincident", 1, 2, 2, 1))
sketch3.addConstraint(Sketcher.Constraint("Coincident", 2, 2, 3, 1))
sketch3.addConstraint(Sketcher.Constraint("Coincident", 3, 2, 0, 1))
sketch3.addConstraint(Sketcher.Constraint("Coincident", 4, 2, 5, 1))
sketch3.addConstraint(Sketcher.Constraint("Coincident", 5, 2, 6, 1))
sketch3.addConstraint(Sketcher.Constraint("Coincident", 6, 2, 7, 1))
sketch3.addConstraint(Sketcher.Constraint("Coincident", 7, 2, 4, 1))
sketch3.addConstraint(Sketcher.Constraint("Vertical", 0))
sketch3.addConstraint(Sketcher.Constraint("Horizontal", 1))
sketch3.addConstraint(Sketcher.Constraint("Vertical", 2))
sketch3.addConstraint(Sketcher.Constraint("Horizontal", 3))
sketch3.addConstraint(Sketcher.Constraint("Vertical", 4))
sketch3.addConstraint(Sketcher.Constraint("Horizontal", 5))
sketch3.addConstraint(Sketcher.Constraint("Vertical", 6))
sketch3.addConstraint(Sketcher.Constraint("Horizontal", 7))
sketch3.addConstraint(Sketcher.Constraint("Symmetric", 2, 2, 4, 2, -1, 1))
sketch3.addConstraint(Sketcher.Constraint("Symmetric", 0, 2, 6, 2, -1, 1))
sketch3.addConstraint(Sketcher.Constraint("Horizontal", 1, 2, 4, 2))
sketch3.addConstraint(Sketcher.Constraint("DistanceX", 1, 2, 1, 1, Q("1.8 mm")))
sketch3.addConstraint(Sketcher.Constraint("DistanceY", 0, 2, 0, 1, Q("6.8 mm")))
sketch3.addConstraint(Sketcher.Constraint("DistanceX", 0, 2, -1, 1, Q("6.38 mm")))
pocket2 = body.newObject("PartDesign::Pocket", "Pocket001")
pocket2.Profile = sketch3
pocket2.Length = 1
pocket2.Reversed = True

doc.recompute()
